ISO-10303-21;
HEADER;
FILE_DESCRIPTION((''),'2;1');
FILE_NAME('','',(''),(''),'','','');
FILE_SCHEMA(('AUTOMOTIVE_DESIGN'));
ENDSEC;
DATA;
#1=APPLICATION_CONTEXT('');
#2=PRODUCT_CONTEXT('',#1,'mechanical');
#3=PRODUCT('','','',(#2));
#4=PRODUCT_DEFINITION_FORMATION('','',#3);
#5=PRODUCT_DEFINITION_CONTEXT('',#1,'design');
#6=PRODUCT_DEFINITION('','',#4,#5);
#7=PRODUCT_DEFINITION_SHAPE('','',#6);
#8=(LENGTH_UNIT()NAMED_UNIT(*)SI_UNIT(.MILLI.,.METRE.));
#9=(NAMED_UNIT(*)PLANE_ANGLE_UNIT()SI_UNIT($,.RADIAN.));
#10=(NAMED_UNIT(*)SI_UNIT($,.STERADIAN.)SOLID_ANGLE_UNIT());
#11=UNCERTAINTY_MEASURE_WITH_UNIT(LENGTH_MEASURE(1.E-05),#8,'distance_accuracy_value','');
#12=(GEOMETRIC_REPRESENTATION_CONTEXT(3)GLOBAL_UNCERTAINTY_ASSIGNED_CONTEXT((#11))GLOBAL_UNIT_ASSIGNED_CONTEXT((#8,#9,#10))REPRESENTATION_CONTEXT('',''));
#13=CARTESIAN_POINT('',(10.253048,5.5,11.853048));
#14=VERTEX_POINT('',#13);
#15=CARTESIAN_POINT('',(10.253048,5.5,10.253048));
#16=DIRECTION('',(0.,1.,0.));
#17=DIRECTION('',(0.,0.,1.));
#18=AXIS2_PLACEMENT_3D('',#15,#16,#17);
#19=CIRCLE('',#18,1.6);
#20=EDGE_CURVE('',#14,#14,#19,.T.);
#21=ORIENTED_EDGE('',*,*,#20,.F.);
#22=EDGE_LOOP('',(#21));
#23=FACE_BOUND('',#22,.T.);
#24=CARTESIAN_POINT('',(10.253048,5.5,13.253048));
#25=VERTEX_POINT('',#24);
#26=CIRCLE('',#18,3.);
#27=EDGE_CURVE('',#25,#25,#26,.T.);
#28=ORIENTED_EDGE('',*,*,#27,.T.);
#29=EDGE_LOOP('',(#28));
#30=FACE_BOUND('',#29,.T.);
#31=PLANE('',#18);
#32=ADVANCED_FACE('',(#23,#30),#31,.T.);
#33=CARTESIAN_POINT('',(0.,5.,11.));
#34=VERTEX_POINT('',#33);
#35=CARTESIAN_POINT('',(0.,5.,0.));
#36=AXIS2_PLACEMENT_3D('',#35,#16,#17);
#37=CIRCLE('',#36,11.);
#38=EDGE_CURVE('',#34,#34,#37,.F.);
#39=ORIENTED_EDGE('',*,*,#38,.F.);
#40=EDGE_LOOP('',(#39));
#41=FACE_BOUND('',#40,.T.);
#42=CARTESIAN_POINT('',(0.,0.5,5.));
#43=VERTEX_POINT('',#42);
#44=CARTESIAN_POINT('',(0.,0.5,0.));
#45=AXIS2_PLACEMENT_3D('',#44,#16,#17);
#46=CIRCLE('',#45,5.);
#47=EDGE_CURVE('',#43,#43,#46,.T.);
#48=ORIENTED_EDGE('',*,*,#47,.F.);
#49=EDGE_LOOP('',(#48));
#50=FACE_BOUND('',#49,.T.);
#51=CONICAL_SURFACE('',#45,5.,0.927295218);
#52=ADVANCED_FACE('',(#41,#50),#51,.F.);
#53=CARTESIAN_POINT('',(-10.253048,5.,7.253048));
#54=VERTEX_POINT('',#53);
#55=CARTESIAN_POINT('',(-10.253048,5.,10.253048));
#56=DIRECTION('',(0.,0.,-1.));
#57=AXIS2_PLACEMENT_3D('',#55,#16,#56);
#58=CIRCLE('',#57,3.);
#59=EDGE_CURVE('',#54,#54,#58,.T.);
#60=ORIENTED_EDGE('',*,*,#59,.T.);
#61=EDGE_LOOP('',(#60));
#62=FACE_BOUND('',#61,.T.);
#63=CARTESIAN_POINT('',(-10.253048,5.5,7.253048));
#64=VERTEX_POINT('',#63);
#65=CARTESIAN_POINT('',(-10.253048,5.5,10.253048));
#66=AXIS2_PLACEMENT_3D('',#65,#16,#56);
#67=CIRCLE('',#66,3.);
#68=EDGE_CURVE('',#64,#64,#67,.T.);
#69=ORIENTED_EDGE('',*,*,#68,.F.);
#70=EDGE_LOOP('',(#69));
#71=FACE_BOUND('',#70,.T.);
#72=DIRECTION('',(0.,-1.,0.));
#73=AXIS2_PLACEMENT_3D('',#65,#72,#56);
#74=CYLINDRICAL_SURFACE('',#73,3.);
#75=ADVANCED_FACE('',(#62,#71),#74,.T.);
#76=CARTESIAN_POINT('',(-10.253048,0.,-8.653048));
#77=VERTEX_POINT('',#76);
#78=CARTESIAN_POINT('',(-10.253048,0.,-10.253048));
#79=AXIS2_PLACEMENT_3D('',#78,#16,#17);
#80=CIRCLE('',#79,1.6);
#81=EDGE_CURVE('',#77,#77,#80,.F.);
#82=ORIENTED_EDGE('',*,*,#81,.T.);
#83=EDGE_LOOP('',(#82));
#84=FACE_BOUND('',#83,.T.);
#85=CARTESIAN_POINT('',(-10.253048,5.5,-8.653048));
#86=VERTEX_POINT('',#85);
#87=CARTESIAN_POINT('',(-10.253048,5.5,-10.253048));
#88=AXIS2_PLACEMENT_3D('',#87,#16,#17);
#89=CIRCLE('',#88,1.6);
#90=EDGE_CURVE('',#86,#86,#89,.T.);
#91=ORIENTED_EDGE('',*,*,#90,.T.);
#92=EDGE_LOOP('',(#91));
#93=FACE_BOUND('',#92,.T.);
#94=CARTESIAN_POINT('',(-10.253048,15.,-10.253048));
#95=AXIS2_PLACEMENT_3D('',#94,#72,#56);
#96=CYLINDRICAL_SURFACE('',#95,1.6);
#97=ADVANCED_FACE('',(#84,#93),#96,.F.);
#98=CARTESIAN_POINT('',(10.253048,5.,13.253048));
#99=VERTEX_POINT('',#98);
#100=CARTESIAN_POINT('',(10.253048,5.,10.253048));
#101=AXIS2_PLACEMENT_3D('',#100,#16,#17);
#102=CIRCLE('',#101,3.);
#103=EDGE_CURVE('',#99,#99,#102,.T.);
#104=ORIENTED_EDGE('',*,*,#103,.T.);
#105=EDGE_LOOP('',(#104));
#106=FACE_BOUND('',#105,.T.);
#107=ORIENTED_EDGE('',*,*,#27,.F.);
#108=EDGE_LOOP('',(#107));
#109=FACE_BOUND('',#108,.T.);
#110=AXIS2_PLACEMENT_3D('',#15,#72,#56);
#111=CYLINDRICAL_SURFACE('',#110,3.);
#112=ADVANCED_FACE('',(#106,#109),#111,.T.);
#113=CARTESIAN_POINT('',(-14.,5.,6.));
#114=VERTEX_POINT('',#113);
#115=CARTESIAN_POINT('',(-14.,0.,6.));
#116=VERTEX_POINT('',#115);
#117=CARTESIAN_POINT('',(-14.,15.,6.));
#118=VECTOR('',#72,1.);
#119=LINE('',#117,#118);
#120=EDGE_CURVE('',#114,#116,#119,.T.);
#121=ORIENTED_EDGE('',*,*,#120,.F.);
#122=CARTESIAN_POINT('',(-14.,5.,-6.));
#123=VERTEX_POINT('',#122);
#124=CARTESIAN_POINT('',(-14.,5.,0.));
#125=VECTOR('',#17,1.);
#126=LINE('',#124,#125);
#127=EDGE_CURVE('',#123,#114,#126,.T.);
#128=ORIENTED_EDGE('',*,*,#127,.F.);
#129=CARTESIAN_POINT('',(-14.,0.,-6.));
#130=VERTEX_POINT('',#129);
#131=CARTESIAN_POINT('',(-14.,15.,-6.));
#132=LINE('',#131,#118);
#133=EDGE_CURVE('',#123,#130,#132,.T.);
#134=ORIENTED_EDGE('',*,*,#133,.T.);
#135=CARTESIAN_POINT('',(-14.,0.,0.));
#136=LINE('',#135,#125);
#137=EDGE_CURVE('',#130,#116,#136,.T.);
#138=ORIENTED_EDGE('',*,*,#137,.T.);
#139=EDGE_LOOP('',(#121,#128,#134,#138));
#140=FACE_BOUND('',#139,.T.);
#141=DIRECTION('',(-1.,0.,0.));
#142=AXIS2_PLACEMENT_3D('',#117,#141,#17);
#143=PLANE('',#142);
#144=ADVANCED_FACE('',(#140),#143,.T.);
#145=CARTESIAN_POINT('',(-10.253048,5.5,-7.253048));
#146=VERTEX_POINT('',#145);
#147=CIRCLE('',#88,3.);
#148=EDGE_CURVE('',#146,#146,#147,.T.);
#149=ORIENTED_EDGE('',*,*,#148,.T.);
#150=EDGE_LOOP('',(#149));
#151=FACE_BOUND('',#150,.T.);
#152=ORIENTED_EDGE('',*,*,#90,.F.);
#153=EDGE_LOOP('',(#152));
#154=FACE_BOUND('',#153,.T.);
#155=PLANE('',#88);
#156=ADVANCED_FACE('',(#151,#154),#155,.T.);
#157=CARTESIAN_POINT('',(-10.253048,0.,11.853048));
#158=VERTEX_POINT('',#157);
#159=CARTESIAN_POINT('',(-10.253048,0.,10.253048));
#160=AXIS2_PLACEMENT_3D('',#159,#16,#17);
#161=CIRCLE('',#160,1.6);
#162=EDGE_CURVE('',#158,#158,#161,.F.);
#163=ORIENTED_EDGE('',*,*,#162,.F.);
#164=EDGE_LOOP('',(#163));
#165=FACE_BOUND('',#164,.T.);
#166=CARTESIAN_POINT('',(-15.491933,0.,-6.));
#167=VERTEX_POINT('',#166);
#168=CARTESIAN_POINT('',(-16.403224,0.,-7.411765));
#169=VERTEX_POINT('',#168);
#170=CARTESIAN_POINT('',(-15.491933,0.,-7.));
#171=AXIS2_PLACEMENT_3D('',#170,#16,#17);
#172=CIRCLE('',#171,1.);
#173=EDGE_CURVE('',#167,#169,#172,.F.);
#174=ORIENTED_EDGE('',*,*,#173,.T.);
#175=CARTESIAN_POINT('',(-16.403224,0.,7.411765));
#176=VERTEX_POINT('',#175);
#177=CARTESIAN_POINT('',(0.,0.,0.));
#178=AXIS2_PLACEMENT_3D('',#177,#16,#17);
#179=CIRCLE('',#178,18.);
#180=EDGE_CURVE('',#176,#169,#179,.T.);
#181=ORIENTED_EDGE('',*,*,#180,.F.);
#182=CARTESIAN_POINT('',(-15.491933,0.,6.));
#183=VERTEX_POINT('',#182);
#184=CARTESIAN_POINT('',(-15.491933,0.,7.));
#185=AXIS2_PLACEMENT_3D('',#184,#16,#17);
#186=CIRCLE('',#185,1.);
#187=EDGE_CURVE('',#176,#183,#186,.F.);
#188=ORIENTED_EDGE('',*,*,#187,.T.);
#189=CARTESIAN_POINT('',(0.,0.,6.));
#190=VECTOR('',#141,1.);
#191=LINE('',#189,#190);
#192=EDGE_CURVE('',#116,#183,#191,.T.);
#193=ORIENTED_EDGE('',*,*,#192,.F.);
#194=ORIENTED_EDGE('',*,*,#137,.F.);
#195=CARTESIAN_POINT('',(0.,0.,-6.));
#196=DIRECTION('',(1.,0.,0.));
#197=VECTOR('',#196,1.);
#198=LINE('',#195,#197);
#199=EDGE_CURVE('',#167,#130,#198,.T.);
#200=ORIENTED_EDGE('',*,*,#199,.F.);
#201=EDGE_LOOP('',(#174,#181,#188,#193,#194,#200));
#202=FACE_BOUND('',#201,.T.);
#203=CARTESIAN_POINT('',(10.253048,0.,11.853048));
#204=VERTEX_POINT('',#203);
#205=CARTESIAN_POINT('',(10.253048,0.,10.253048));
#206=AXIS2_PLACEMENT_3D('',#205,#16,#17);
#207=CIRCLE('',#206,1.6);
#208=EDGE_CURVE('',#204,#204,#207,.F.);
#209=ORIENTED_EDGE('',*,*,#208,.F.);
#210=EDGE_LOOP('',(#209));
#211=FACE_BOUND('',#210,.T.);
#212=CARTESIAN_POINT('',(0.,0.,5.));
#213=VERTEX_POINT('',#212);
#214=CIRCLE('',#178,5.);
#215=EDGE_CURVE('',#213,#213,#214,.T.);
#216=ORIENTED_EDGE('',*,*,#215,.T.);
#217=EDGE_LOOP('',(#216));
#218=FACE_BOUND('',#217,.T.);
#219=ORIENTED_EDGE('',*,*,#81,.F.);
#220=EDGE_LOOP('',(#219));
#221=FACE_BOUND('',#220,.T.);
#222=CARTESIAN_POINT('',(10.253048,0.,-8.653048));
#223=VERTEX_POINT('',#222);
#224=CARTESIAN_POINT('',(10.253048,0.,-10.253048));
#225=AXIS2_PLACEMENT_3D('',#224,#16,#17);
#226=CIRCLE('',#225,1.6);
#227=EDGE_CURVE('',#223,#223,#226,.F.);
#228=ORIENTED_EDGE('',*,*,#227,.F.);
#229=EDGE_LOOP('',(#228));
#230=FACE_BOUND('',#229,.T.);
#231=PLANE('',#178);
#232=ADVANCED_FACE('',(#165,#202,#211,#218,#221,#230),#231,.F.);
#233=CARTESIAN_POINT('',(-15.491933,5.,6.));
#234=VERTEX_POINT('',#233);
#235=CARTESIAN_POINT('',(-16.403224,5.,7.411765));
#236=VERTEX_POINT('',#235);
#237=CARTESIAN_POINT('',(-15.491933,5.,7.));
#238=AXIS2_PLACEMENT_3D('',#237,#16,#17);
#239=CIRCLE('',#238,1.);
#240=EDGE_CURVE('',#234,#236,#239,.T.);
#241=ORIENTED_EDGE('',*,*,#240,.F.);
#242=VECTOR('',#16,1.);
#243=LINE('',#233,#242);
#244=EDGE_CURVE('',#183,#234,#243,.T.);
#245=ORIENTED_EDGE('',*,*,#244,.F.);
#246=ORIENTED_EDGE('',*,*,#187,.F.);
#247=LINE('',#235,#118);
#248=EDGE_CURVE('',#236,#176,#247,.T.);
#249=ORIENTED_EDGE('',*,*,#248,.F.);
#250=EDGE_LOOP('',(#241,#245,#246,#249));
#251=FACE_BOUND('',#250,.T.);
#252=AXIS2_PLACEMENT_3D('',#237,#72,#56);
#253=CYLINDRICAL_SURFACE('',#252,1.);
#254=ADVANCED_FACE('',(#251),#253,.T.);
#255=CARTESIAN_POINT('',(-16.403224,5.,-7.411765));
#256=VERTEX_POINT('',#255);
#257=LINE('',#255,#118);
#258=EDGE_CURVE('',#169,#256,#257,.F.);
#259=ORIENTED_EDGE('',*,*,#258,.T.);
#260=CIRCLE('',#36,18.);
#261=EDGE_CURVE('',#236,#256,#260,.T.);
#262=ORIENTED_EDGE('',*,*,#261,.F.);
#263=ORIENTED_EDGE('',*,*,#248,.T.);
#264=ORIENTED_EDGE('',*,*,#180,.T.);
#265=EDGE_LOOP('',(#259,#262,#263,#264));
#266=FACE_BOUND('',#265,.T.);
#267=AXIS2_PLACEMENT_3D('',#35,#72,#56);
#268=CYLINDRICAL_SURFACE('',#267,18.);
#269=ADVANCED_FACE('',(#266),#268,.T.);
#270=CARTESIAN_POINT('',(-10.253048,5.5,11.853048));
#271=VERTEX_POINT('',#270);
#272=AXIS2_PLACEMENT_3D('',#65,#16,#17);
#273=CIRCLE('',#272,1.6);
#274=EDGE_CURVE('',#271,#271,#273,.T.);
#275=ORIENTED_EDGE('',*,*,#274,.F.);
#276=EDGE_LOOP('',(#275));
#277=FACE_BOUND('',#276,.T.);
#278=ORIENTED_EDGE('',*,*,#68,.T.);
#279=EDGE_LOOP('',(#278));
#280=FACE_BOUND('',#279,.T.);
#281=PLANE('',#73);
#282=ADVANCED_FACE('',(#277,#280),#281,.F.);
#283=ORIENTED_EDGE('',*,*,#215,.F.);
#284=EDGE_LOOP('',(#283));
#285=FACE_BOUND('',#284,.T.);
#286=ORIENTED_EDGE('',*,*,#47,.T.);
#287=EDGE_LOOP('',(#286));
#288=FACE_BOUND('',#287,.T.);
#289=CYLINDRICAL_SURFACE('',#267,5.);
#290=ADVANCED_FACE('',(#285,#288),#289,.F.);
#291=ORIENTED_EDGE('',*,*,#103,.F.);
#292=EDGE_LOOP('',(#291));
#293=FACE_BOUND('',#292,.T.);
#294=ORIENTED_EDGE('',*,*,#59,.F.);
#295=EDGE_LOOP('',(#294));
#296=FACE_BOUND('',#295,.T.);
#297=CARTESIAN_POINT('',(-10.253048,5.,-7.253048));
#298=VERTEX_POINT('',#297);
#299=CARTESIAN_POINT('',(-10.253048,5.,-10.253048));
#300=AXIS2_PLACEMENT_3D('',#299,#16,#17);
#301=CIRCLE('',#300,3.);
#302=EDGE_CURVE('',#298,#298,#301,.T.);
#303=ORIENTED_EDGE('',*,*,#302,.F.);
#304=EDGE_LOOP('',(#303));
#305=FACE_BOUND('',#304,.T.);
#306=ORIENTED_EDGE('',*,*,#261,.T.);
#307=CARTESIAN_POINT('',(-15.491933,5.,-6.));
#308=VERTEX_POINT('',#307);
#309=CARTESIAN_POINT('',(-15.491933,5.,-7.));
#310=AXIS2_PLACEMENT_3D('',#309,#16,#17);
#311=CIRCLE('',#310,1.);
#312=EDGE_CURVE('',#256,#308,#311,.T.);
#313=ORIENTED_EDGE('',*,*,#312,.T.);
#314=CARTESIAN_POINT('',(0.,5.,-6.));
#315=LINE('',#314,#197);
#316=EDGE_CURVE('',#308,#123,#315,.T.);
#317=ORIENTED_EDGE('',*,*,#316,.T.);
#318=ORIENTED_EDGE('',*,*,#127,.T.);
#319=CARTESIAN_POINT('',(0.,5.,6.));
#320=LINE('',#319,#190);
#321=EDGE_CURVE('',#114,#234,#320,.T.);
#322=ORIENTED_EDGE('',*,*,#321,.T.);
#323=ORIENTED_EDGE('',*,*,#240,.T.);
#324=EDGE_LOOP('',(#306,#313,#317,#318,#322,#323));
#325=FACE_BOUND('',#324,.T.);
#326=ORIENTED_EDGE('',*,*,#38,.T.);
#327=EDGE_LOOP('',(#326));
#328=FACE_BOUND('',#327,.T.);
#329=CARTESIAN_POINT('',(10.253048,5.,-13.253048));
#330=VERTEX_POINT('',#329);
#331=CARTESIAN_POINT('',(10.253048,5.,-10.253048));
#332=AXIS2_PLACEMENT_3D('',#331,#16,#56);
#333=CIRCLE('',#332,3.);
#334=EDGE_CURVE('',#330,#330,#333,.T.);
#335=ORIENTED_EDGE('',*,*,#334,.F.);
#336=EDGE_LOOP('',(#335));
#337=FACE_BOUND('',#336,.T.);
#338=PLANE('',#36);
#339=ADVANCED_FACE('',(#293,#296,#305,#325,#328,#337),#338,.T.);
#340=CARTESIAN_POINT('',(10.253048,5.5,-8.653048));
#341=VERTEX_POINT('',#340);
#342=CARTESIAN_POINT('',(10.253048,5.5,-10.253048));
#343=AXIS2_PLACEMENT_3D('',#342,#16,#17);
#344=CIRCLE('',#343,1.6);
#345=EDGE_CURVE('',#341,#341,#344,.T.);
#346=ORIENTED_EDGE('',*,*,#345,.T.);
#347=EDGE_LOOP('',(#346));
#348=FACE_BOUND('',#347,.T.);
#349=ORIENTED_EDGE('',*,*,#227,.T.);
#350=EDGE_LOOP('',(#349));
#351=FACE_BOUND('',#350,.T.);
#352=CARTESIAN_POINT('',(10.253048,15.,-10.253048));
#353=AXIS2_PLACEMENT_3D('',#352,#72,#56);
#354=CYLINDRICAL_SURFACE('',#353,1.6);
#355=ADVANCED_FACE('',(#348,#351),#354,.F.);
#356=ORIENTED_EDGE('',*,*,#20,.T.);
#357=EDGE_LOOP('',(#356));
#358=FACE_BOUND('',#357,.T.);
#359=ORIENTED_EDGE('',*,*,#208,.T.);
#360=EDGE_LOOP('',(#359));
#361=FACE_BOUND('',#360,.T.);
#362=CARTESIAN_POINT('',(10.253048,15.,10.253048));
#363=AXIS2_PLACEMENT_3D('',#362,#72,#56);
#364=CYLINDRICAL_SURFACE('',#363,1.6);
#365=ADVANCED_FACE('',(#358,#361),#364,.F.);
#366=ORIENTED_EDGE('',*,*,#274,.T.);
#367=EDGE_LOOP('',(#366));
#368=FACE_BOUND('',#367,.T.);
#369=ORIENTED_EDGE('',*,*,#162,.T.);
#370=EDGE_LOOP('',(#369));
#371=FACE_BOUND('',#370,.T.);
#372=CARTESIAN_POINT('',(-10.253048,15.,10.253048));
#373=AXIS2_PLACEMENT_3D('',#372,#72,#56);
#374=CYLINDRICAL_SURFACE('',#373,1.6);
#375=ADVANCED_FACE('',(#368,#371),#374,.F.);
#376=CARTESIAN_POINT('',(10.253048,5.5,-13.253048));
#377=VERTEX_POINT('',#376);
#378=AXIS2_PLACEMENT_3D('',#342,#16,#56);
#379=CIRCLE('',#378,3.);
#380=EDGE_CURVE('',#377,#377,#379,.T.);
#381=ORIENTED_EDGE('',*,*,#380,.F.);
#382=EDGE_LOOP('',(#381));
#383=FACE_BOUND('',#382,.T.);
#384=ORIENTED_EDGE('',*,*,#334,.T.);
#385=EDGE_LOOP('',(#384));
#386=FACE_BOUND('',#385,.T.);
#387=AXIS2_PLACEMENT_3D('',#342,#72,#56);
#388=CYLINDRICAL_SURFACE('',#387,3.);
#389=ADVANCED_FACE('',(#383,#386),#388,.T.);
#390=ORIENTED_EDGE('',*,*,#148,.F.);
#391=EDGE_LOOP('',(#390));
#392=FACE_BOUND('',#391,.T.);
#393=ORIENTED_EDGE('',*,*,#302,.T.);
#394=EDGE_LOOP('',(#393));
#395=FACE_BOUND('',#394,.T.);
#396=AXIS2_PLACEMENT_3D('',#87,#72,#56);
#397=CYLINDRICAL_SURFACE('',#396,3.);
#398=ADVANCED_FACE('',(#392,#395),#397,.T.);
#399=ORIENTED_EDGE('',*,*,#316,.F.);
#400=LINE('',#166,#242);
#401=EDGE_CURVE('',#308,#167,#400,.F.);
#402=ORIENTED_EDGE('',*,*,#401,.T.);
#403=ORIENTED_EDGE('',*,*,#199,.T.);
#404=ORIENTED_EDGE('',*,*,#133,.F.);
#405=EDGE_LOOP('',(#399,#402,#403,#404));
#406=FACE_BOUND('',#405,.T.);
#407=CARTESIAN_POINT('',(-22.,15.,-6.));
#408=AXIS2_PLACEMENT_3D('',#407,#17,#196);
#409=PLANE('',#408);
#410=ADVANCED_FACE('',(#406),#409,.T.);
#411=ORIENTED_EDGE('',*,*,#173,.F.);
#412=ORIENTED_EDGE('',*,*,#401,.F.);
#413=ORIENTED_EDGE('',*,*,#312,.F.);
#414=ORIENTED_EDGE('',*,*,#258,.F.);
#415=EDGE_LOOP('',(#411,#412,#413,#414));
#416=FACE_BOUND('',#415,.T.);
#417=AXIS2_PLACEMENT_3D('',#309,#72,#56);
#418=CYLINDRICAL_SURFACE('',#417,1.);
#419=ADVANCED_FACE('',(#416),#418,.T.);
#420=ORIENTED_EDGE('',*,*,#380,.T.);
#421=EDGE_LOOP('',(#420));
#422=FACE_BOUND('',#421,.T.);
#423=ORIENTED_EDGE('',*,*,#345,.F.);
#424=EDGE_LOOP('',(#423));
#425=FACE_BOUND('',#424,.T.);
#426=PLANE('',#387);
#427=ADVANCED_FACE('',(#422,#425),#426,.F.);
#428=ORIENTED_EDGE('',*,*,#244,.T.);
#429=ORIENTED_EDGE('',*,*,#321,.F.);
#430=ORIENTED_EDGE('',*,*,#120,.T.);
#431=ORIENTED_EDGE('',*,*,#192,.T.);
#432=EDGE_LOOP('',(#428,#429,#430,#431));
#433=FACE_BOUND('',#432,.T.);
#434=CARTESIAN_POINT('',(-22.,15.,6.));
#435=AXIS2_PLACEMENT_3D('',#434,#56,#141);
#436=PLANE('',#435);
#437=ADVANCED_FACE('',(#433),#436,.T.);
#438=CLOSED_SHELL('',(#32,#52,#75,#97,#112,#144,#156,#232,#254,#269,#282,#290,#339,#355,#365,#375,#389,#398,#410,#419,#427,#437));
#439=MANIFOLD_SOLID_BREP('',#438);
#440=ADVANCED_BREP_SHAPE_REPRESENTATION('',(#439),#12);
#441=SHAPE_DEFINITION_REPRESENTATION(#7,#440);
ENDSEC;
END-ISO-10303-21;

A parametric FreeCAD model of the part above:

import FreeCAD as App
import Part
import Sketcher
from FreeCAD import Vector
Q = App.Units.Quantity


def edges_at(feature, points):
    """Names of the edges that pass closest to the given points."""
    edges = feature.Shape.Edges
    near = lambda p: min(range(len(edges)), key=lambda i: edges[i].distToShape(Part.Vertex(*p))[0])
    return sorted({f"Edge{near(p) + 1}" for p in points})


def add_polygon(sketch, points):
    """Adds a closed chain of lines whose ends are joined by coincident constraints."""
    first, n = sketch.GeometryCount, len(points)
    for a, b in zip(points, points[1:] + points[:1]):
        sketch.addGeometry(Part.LineSegment(App.Vector(*a, 0), App.Vector(*b, 0)), False)
    for i in range(n):
        sketch.addConstraint(Sketcher.Constraint("Coincident", first + i, 2, first + (i + 1) % n, 1))

doc = App.newDocument("Part")
body = doc.addObject("PartDesign::Body", "Body")

# Sketch on XZ plane
sketch1 = body.newObject("Sketcher::SketchObject", "Sketch")
sketch1.AttachmentSupport = (doc.getObject("XZ_Plane"), [""])
sketch1.MapMode = "FlatFace"
sketch1.addGeometry([
    Part.Circle(Vector(0, 0, 0), Vector(0, 0, 1), 18),
    Part.Circle(Vector(0, 0, 0), Vector(0, 0, 1), 5),
], False)
sketch1.addConstraint([
    Sketcher.Constraint("Coincident", 0, 3, -1, 1),
    Sketcher.Constraint("Coincident", 1, 3, -1, 1),
    Sketcher.Constraint("Diameter", 0, Q("36 mm")),
    Sketcher.Constraint("Diameter", 1, Q("10 mm")),
])
pad1 = body.newObject("PartDesign::Pad", "Pad")
pad1.Profile = sketch1
pad1.Length = 5
pad1.Reversed = True
doc.recompute()

chamfer = body.newObject("PartDesign::Chamfer", "Chamfer")
chamfer.Base = (pad1, edges_at(pad1, [(-5, 5, 0)]))
chamfer.ChamferType = "Two distances"
chamfer.Size = 6
chamfer.Size2 = 4.5
chamfer.FlipDirection = True

# Sketch on XZ plane
sketch2 = body.newObject("Sketcher::SketchObject", "Sketch001")
sketch2.AttachmentSupport = (doc.getObject("XZ_Plane"), [""])
sketch2.MapMode = "FlatFace"
sketch2.AttachmentOffset = App.Placement(Vector(0, 0, -5), App.Rotation())
sketch2.addGeometry([
    Part.Circle(Vector(-10.3, -10.3, 0), Vector(0, 0, 1), 1.6),
    Part.Circle(Vector(-10.3, 10.3, 0), Vector(0, 0, 1), 1.6),
    Part.Circle(Vector(10.3, 10.3, 0), Vector(0, 0, 1), 1.6),
    Part.Circle(Vector(10.3, -10.3, 0), Vector(0, 0, 1), 1.6),
], False)
sketch2.addConstraint([
    Sketcher.Constraint("Equal", 0, 1),
    Sketcher.Constraint("Equal", 1, 2),
    Sketcher.Constraint("Equal", 2, 3),
    Sketcher.Constraint("Symmetric", 0, 3, 2, 3, -1, 1),
    Sketcher.Constraint("Symmetric", 1, 3, 3, 3, -1, 1),
    Sketcher.Constraint("Symmetric", 1, 3, 2, 3, -2),
    Sketcher.Constraint("Diameter", 0, Q("3.2 mm")),
    Sketcher.Constraint("DistanceX", 0, 3, -1, 1, Q("10.253048 mm")),
    Sketcher.Constraint("DistanceY", 0, 3, -1, 1, Q("10.253048 mm")),
])
pocket1 = body.newObject("PartDesign::Pocket", "Pocket")
pocket1.Profile = sketch2
pocket1.Type = "ThroughAll"
pocket1.Midplane = True

# Sketch on XZ plane
sketch3 = body.newObject("Sketcher::SketchObject", "Sketch002")
sketch3.AttachmentSupport = (doc.getObject("XZ_Plane"), [""])
sketch3.MapMode = "FlatFace"
sketch3.AttachmentOffset = App.Placement(Vector(0, 0, -5), App.Rotation())
sketch3.addGeometry([
    Part.Circle(Vector(-10.3, -10.3, 0), Vector(0, 0, 1), 3),  # 0
    Part.Circle(Vector(-10.3, -10.3, 0), Vector(0, 0, 1), 1.6),  # 1
    Part.Circle(Vector(10.3, -10.3, 0), Vector(0, 0, 1), 3),  # 2
    Part.Circle(Vector(10.3, -10.3, 0), Vector(0, 0, 1), 1.6),  # 3
    Part.Circle(Vector(10.3, 10.3, 0), Vector(0, 0, 1), 3),  # 4
    Part.Circle(Vector(10.3, 10.3, 0), Vector(0, 0, 1), 1.6),  # 5
    Part.Circle(Vector(-10.3, 10.3, 0), Vector(0, 0, 1), 3),  # 6
    Part.Circle(Vector(-10.3, 10.3, 0), Vector(0, 0, 1), 1.6),  # 7
], False)
sketch3.addConstraint([
    Sketcher.Constraint("Coincident", 1, 3, 0, 3),
    Sketcher.Constraint("Coincident", 3, 3, 2, 3),
    Sketcher.Constraint("Coincident", 5, 3, 4, 3),
    Sketcher.Constraint("Coincident", 7, 3, 6, 3),
    Sketcher.Constraint("Equal", 0, 2),
    Sketcher.Constraint("Equal", 1, 3),
    Sketcher.Constraint("Equal", 2, 4),
    Sketcher.Constraint("Equal", 3, 5),
    Sketcher.Constraint("Equal", 4, 6),
    Sketcher.Constraint("Equal", 5, 7),
    Sketcher.Constraint("Symmetric", 0, 3, 4, 3, -1, 1),
    Sketcher.Constraint("Symmetric", 2, 3, 6, 3, -1, 1),
    Sketcher.Constraint("Symmetric", 0, 3, 2, 3, -2),
    Sketcher.Constraint("Diameter", 0, Q("6 mm")),
    Sketcher.Constraint("Diameter", 1, Q("3.2 mm")),
    Sketcher.Constraint("DistanceX", 0, 3, -1, 1, Q("10.253048 mm")),
    Sketcher.Constraint("DistanceY", 0, 3, -1, 1, Q("10.253048 mm")),
])
pad2 = body.newObject("PartDesign::Pad", "Pad001")
pad2.Profile = sketch3
pad2.Length = 0.5
pad2.Reversed = True

# Sketch on XZ plane
sketch4 = body.newObject("Sketcher::SketchObject", "Sketch003")
sketch4.AttachmentSupport = (doc.getObject("XZ_Plane"), [""])
sketch4.MapMode = "FlatFace"
sketch4.AttachmentOffset = App.Placement(Vector(0, 0, -5), App.Rotation())
add_polygon(sketch4, [(-22, -6), (-22, 6), (-14, 6), (-14, -6)])  # lines 0-3
sketch4.addConstraint([
    Sketcher.Constraint("Vertical", 0),
    Sketcher.Constraint("Horizontal", 1),
    Sketcher.Constraint("Vertical", 2),
    Sketcher.Constraint("Horizontal", 3),
    Sketcher.Constraint("DistanceX", 1, 1, 1, 2, Q("8 mm")),
    Sketcher.Constraint("DistanceY", 0, 1, 0, 2, Q("12 mm")),
    Sketcher.Constraint("DistanceX", 0, 2, -1, 1, Q("22 mm")),
    Sketcher.Constraint("DistanceY", -1, 1, 0, 2, Q("6 mm")),
])
pocket2 = body.newObject("PartDesign::Pocket", "Pocket001")
pocket2.Profile = sketch4
pocket2.Type = "ThroughAll"
pocket2.Midplane = True
doc.recompute()

fillet = body.newObject("PartDesign::Fillet", "Fillet")
fillet.Base = (pocket2, edges_at(pocket2, [(-16.971, 2.5, 6), (-16.971, 2.5, -6)]))
fillet.Radius = 1

doc.recompute()
